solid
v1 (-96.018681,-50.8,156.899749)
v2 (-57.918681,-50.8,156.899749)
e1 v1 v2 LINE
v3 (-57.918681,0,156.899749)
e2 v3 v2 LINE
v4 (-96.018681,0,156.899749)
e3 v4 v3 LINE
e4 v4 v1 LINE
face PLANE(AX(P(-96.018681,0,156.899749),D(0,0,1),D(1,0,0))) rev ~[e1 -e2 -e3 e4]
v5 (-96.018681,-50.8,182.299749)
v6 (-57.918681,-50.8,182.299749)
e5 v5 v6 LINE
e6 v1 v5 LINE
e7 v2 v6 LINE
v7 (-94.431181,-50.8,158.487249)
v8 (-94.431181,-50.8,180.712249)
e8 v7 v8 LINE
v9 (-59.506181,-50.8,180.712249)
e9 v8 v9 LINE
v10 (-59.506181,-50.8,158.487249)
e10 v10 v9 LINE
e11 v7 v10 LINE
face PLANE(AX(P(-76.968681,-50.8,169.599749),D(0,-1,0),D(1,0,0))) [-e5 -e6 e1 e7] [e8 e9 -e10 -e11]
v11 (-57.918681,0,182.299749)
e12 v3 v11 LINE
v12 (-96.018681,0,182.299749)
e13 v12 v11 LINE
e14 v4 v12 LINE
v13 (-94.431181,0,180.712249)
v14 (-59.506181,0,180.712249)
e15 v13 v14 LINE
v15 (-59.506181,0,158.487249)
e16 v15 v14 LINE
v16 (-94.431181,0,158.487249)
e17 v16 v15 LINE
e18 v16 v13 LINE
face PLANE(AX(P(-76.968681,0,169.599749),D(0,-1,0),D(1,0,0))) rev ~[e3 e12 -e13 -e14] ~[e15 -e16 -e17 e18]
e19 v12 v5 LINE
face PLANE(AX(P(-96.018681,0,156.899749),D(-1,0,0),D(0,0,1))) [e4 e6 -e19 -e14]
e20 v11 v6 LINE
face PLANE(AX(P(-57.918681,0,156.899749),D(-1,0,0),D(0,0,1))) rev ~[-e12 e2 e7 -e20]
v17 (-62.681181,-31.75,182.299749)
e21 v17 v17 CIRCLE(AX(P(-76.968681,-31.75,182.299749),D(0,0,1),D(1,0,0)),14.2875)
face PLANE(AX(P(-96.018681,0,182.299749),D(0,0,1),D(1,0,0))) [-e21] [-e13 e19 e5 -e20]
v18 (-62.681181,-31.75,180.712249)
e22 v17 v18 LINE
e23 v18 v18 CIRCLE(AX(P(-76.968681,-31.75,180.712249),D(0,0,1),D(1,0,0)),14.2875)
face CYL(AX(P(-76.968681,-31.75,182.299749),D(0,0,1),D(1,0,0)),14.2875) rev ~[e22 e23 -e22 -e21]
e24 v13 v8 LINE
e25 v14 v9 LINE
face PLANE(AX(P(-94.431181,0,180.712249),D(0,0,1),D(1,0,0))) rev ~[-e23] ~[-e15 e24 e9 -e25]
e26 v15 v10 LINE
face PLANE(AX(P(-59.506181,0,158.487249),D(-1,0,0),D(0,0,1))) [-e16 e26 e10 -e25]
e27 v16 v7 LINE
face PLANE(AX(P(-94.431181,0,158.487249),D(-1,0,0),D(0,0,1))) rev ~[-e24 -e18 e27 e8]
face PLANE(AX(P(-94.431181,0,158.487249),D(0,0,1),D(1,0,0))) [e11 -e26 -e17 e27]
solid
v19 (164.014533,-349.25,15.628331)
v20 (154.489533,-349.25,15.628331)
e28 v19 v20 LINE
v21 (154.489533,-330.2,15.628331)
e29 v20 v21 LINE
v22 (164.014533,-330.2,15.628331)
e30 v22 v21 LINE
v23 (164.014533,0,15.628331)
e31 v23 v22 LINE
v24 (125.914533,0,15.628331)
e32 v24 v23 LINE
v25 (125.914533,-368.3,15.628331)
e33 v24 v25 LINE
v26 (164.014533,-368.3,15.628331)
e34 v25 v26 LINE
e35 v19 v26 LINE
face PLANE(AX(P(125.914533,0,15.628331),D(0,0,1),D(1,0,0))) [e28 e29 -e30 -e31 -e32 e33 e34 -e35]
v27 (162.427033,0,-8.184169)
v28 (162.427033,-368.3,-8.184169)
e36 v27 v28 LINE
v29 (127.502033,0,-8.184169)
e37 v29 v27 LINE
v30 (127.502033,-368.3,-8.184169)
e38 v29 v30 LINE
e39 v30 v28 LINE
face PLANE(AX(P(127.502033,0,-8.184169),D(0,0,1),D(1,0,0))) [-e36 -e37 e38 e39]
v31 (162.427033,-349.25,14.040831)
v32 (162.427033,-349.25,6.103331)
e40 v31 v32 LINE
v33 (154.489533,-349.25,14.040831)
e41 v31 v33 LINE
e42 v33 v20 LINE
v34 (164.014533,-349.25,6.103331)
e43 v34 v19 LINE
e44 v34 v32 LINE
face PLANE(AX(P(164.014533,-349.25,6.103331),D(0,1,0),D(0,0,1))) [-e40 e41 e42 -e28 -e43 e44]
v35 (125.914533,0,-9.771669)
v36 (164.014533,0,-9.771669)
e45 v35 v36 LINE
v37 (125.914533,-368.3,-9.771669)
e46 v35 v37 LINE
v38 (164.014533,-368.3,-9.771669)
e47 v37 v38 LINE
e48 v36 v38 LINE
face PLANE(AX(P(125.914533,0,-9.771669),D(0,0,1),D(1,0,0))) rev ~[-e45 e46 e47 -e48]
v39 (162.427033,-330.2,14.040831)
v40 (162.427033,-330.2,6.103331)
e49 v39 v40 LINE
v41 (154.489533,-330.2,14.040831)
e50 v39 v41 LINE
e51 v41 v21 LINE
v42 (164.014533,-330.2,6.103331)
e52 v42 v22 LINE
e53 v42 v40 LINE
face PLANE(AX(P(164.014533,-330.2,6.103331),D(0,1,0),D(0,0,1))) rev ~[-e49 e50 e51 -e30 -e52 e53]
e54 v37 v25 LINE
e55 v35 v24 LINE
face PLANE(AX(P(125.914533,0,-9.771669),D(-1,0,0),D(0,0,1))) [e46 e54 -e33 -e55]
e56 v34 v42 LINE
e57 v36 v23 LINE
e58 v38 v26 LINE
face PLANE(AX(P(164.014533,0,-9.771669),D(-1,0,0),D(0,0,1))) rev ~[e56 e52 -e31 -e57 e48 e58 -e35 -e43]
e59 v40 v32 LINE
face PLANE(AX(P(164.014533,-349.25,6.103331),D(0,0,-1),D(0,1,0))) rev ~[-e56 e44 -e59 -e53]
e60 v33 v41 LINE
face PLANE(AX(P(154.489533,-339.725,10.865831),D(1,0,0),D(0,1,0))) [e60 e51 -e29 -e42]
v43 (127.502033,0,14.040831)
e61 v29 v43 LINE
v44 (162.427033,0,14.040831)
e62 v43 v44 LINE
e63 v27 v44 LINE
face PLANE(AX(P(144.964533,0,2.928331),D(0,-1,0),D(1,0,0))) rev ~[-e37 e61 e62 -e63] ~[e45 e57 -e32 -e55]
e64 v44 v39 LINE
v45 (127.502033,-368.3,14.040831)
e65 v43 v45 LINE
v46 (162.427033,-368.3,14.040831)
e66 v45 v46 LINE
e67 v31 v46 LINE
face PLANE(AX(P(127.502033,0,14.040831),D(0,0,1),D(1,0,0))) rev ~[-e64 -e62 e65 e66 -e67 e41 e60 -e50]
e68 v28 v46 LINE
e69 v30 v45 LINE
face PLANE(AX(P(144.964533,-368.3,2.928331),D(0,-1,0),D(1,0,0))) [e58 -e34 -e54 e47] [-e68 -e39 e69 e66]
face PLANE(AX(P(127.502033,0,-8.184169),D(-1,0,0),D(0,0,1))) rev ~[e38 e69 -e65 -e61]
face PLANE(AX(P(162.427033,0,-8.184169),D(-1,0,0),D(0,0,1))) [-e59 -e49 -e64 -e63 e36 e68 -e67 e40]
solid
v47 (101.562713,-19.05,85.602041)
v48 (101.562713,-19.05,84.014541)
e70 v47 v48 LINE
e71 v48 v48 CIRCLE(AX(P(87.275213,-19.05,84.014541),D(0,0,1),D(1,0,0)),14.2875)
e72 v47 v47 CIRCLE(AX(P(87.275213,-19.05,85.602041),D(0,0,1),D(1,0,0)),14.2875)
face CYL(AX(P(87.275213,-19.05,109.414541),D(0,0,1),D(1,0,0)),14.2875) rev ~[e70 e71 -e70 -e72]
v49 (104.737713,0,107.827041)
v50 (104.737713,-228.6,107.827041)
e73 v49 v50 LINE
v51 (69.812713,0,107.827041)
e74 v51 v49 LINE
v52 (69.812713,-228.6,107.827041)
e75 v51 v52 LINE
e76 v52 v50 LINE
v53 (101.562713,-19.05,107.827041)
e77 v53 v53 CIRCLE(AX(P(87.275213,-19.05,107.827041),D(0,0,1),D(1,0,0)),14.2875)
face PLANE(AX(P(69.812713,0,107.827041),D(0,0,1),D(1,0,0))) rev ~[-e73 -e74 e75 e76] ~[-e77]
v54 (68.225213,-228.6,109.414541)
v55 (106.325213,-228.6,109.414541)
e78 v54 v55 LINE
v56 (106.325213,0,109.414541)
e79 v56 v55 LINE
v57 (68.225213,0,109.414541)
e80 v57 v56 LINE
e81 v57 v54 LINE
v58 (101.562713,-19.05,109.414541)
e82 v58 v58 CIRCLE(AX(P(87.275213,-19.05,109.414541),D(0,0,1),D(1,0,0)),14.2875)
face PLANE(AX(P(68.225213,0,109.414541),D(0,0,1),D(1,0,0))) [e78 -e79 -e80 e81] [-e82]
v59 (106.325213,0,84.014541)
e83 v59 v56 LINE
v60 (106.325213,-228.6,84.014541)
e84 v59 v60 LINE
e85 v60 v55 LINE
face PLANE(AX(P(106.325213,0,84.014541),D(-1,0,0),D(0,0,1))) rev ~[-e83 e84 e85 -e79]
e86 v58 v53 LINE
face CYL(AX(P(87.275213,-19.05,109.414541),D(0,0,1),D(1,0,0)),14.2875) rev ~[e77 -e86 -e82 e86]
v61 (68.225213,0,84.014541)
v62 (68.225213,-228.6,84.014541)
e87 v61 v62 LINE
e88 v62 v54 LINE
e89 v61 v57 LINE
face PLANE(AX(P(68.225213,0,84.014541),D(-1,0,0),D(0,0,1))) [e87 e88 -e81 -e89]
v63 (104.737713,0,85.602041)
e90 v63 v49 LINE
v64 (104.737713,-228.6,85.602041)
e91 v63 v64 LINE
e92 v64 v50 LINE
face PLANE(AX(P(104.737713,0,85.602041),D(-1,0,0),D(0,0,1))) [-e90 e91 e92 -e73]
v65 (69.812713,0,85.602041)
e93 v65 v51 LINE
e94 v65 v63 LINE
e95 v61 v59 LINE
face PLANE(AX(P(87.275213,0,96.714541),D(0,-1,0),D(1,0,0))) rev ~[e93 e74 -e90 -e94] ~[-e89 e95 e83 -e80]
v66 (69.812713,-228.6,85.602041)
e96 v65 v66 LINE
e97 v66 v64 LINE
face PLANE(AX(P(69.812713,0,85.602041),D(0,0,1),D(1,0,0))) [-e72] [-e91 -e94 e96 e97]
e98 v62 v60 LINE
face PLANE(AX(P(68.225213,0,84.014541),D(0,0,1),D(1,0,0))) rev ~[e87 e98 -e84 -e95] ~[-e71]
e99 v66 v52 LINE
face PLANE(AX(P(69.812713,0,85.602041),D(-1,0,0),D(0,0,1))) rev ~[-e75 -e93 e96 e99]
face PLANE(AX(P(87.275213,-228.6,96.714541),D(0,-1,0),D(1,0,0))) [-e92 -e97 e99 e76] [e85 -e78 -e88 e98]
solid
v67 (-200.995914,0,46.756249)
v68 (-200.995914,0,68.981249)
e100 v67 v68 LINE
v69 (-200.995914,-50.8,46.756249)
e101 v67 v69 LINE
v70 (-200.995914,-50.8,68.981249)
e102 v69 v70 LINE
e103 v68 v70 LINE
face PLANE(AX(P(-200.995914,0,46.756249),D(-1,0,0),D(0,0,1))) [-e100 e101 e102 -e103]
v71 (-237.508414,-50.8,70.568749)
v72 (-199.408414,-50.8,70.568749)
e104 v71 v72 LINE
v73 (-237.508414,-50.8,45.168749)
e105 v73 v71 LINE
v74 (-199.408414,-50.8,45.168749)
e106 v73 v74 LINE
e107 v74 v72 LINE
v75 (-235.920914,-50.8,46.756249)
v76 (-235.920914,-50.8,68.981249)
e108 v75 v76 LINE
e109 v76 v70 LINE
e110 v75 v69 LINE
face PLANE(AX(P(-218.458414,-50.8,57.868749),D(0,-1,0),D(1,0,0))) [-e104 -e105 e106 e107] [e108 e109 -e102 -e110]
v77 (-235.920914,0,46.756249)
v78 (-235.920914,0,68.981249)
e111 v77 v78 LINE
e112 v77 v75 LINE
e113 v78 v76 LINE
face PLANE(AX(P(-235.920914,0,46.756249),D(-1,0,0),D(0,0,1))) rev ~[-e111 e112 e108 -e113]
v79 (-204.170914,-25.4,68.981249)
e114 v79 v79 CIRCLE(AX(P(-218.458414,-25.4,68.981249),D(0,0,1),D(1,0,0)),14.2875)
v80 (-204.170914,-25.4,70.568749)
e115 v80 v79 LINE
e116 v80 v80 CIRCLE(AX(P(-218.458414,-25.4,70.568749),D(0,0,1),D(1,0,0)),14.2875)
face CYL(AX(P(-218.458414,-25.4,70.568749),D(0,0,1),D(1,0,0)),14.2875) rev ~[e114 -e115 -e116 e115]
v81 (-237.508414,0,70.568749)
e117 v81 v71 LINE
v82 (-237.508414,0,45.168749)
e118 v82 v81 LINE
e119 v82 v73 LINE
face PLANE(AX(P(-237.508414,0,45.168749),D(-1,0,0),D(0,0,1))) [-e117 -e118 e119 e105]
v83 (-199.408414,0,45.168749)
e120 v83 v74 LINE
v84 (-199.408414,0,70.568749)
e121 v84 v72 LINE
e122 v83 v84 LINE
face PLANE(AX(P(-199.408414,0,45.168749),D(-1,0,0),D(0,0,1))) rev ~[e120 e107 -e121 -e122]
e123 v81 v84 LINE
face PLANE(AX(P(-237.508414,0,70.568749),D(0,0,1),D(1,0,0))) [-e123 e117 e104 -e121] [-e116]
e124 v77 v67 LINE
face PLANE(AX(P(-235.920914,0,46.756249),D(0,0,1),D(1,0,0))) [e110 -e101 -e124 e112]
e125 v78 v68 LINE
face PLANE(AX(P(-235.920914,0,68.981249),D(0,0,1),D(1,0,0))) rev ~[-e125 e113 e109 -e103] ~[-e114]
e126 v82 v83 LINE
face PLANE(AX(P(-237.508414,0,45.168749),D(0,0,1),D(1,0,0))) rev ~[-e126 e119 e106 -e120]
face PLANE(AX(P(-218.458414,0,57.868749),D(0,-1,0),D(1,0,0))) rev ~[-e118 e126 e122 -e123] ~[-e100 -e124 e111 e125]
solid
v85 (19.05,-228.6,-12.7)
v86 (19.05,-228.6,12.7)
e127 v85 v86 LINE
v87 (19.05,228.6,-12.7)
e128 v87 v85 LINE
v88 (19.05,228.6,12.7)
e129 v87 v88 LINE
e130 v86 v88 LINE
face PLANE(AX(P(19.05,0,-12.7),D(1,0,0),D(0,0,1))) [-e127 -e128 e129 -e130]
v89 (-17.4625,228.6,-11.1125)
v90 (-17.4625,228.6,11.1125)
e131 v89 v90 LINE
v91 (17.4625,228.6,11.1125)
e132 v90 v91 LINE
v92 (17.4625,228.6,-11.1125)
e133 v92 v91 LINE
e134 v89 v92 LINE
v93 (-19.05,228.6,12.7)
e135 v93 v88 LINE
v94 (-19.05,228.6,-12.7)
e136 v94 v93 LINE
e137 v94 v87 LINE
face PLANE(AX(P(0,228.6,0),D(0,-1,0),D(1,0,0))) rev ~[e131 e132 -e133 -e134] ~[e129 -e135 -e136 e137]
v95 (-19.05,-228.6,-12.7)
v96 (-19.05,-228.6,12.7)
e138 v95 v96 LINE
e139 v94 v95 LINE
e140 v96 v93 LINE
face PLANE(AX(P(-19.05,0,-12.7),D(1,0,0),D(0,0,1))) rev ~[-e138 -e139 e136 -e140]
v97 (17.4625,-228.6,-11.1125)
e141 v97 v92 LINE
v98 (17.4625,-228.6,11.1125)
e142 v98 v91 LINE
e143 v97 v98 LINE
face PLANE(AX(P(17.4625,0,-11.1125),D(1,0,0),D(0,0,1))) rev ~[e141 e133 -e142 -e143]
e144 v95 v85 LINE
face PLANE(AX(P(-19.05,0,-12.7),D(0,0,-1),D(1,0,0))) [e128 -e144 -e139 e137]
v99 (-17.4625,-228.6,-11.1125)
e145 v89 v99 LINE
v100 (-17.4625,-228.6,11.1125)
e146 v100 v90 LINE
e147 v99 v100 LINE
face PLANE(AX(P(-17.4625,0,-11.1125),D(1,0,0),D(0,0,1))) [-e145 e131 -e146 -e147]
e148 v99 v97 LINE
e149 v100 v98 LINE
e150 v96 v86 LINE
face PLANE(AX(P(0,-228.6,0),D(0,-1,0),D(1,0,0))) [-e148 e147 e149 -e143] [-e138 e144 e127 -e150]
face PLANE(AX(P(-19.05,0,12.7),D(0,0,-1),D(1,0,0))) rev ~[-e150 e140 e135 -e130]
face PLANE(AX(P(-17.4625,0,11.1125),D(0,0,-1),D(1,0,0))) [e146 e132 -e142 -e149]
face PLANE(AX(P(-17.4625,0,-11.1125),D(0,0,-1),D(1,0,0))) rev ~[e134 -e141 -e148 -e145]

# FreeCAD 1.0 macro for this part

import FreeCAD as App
import Part
import Sketcher

V = App.Vector
Q = App.Units.Quantity


def add_polygon(sketch, points):
    """Adds a closed chain of lines whose ends are joined by coincident constraints."""
    first, n = sketch.GeometryCount, len(points)
    for a, b in zip(points, points[1:] + points[:1]):
        sketch.addGeometry(Part.LineSegment(App.Vector(*a, 0), App.Vector(*b, 0)), False)
    for i in range(n):
        sketch.addConstraint(Sketcher.Constraint("Coincident", first + i, 2, first + (i + 1) % n, 1))

doc = App.newDocument("Part")
body = doc.addObject("PartDesign::Body", "Body")

sketch1 = body.newObject("Sketcher::SketchObject", "Sketch")
sketch1.AttachmentSupport = (doc.getObject("XZ_Plane"), [""])
sketch1.MapMode = "FlatFace"
add_polygon(sketch1, [(-19, 13), (-19, -13), (19, -13), (19, 13)])
add_polygon(sketch1, [(17, -11), (-17, -11), (-17, 11), (17, 11)])
sketch1.addConstraint(Sketcher.Constraint("Vertical", 0))
sketch1.addConstraint(Sketcher.Constraint("Horizontal", 1))
sketch1.addConstraint(Sketcher.Constraint("Vertical", 2))
sketch1.addConstraint(Sketcher.Constraint("Horizontal", 3))
sketch1.addConstraint(Sketcher.Constraint("Horizontal", 4))
sketch1.addConstraint(Sketcher.Constraint("Vertical", 5))
sketch1.addConstraint(Sketcher.Constraint("Horizontal", 6))
sketch1.addConstraint(Sketcher.Constraint("Vertical", 7))
sketch1.addConstraint(Sketcher.Constraint("Symmetric", 0, 2, 2, 2, -1, 1))
sketch1.addConstraint(Sketcher.Constraint("Symmetric", 4, 2, 6, 2, -1, 1))
sketch1.addConstraint(Sketcher.Constraint("DistanceY", 0, 2, 0, 1, Q("1 in")))
sketch1.addConstraint(Sketcher.Constraint("DistanceX", 1, 1, 1, 2, Q("1.5 in")))
sketch1.addConstraint(Sketcher.Constraint("DistanceX", 4, 2, 4, 1, Q("1.375 in")))
sketch1.addConstraint(Sketcher.Constraint("DistanceY", 5, 1, 5, 2, Q("0.875 in")))
pad1 = body.newObject("PartDesign::Pad", "Pad")
pad1.Profile = sketch1
pad1.Length = Q("18 in")
pad1.Midplane = True
body2 = doc.addObject("PartDesign::Body", "Body001")

sketch2 = body2.newObject("Sketcher::SketchObject", "Sketch001")
sketch2.AttachmentSupport = (doc.getObject("XZ_Plane001"), [""])
sketch2.MapMode = "FlatFace"
add_polygon(sketch2, [(68, 109), (68, 84), (106, 84), (106, 109)])
add_polygon(sketch2, [(105, 86), (70, 86), (70, 108), (105, 108)])
sketch2.addConstraint(Sketcher.Constraint("Vertical", 0))
sketch2.addConstraint(Sketcher.Constraint("Horizontal", 1))
sketch2.addConstraint(Sketcher.Constraint("Vertical", 2))
sketch2.addConstraint(Sketcher.Constraint("Horizontal", 3))
sketch2.addConstraint(Sketcher.Constraint("Horizontal", 4))
sketch2.addConstraint(Sketcher.Constraint("Vertical", 5))
sketch2.addConstraint(Sketcher.Constraint("Horizontal", 6))
sketch2.addConstraint(Sketcher.Constraint("Vertical", 7))
sketch2.addConstraint(Sketcher.Constraint("DistanceY", 0, 2, 0, 1, Q("1 in")))
sketch2.addConstraint(Sketcher.Constraint("DistanceX", 1, 1, 1, 2, Q("1.5 in")))
sketch2.addConstraint(Sketcher.Constraint("DistanceX", 4, 2, 4, 1, Q("1.375 in")))
sketch2.addConstraint(Sketcher.Constraint("DistanceY", 5, 1, 5, 2, Q("0.875 in")))
sketch2.addConstraint(Sketcher.Constraint("DistanceX", 0, 2, 4, 2, Q("0.0625 in")))
sketch2.addConstraint(Sketcher.Constraint("DistanceY", 0, 2, 4, 2, Q("0.0625 in")))
sketch2.addConstraint(Sketcher.Constraint("DistanceY", -1, 1, 0, 2, 84.014541))
sketch2.addConstraint(Sketcher.Constraint("DistanceX", -1, 1, 0, 2, 68.225213))
pad2 = body2.newObject("PartDesign::Pad", "Pad001")
pad2.Profile = sketch2
pad2.Length = Q("9 in")

sketch3 = body2.newObject("Sketcher::SketchObject", "Sketch002")
sketch3.AttachmentSupport = (doc.getObject("XY_Plane001"), [""])
sketch3.MapMode = "FlatFace"
sketch3.AttachmentOffset = App.Placement(V(0, 0, 109.414541), App.Rotation())
sketch3.addGeometry(Part.Circle(V(87, -19, 0), V(0, 0, 1), 14), False)
sketch3.addConstraint(Sketcher.Constraint("Diameter", 0, Q("1.125 in")))
sketch3.addConstraint(Sketcher.Constraint("DistanceY", 0, 3, -1, 1, Q("0.75 in")))
sketch3.addConstraint(Sketcher.Constraint("DistanceX", -1, 1, 0, 3, 87.275213))
pocket1 = body2.newObject("PartDesign::Pocket", "Pocket")
pocket1.Profile = sketch3
pocket1.Type = "ThroughAll"
body3 = doc.addObject("PartDesign::Body", "Body002")

sketch4 = body3.newObject("Sketcher::SketchObject", "Sketch003")
sketch4.AttachmentSupport = (doc.getObject("XZ_Plane002"), [""])
sketch4.MapMode = "FlatFace"
add_polygon(sketch4, [(-96, 182), (-96, 157), (-58, 157), (-58, 182)])
add_polygon(sketch4, [(-60, 158), (-94, 158), (-94, 181), (-60, 181)])
sketch4.addConstraint(Sketcher.Constraint("Vertical", 0))
sketch4.addConstraint(Sketcher.Constraint("Horizontal", 1))
sketch4.addConstraint(Sketcher.Constraint("Vertical", 2))
sketch4.addConstraint(Sketcher.Constraint("Horizontal", 3))
sketch4.addConstraint(Sketcher.Constraint("Horizontal", 4))
sketch4.addConstraint(Sketcher.Constraint("Vertical", 5))
sketch4.addConstraint(Sketcher.Constraint("Horizontal", 6))
sketch4.addConstraint(Sketcher.Constraint("Vertical", 7))
sketch4.addConstraint(Sketcher.Constraint("DistanceY", 0, 2, 0, 1, Q("1 in")))
sketch4.addConstraint(Sketcher.Constraint("DistanceX", 1, 1, 1, 2, Q("1.5 in")))
sketch4.addConstraint(Sketcher.Constraint("DistanceX", 4, 2, 4, 1, Q("1.375 in")))
sketch4.addConstraint(Sketcher.Constraint("DistanceY", 5, 1, 5, 2, Q("0.875 in")))
sketch4.addConstraint(Sketcher.Constraint("DistanceX", 0, 2, 4, 2, Q("0.0625 in")))
sketch4.addConstraint(Sketcher.Constraint("DistanceY", 0, 2, 4, 2, Q("0.0625 in")))
sketch4.addConstraint(Sketcher.Constraint("DistanceX", 0, 2, -1, 1, 96.018681))
sketch4.addConstraint(Sketcher.Constraint("DistanceY", -1, 1, 0, 2, 156.899749))
pad3 = body3.newObject("PartDesign::Pad", "Pad002")
pad3.Profile = sketch4
pad3.Length = Q("2 in")

sketch5 = body3.newObject("Sketcher::SketchObject", "Sketch004")
sketch5.AttachmentSupport = (doc.getObject("XY_Plane002"), [""])
sketch5.MapMode = "FlatFace"
sketch5.AttachmentOffset = App.Placement(V(0, 0, 182.299749), App.Rotation())
sketch5.addGeometry(Part.Circle(V(-77, -32, 0), V(0, 0, 1), 14), False)
sketch5.addConstraint(Sketcher.Constraint("Diameter", 0, Q("1.125 in")))
sketch5.addConstraint(Sketcher.Constraint("DistanceY", 0, 3, -1, 1, Q("1.25 in")))
sketch5.addConstraint(Sketcher.Constraint("DistanceX", 0, 3, -1, 1, 76.968681))
pocket2 = body3.newObject("PartDesign::Pocket", "Pocket001")
pocket2.Profile = sketch5
pocket2.Length = Q("0.5 in")
body4 = doc.addObject("PartDesign::Body", "Body003")

sketch6 = body4.newObject("Sketcher::SketchObject", "Sketch005")
sketch6.AttachmentSupport = (doc.getObject("XZ_Plane003"), [""])
sketch6.MapMode = "FlatFace"
add_polygon(sketch6, [(-238, 71), (-238, 45), (-199, 45), (-199, 71)])
add_polygon(sketch6, [(-201, 47), (-236, 47), (-236, 69), (-201, 69)])
sketch6.addConstraint(Sketcher.Constraint("Vertical", 0))
sketch6.addConstraint(Sketcher.Constraint("Horizontal", 1))
sketch6.addConstraint(Sketcher.Constraint("Vertical", 2))
sketch6.addConstraint(Sketcher.Constraint("Horizontal", 3))
sketch6.addConstraint(Sketcher.Constraint("Horizontal", 4))
sketch6.addConstraint(Sketcher.Constraint("Vertical", 5))
sketch6.addConstraint(Sketcher.Constraint("Horizontal", 6))
sketch6.addConstraint(Sketcher.Constraint("Vertical", 7))
sketch6.addConstraint(Sketcher.Constraint("DistanceY", 0, 2, 0, 1, Q("1 in")))
sketch6.addConstraint(Sketcher.Constraint("DistanceX", 1, 1, 1, 2, Q("1.5 in")))
sketch6.addConstraint(Sketcher.Constraint("DistanceX", 4, 2, 4, 1, Q("1.375 in")))
sketch6.addConstraint(Sketcher.Constraint("DistanceY", 5, 1, 5, 2, Q("0.875 in")))
sketch6.addConstraint(Sketcher.Constraint("DistanceX", 0, 2, 4, 2, Q("0.0625 in")))
sketch6.addConstraint(Sketcher.Constraint("DistanceY", 0, 2, 4, 2, Q("0.0625 in")))
sketch6.addConstraint(Sketcher.Constraint("DistanceY", -1, 1, 0, 2, 45.168749))
sketch6.addConstraint(Sketcher.Constraint("DistanceX", 0, 2, -1, 1, 237.508414))
pad4 = body4.newObject("PartDesign::Pad", "Pad003")
pad4.Profile = sketch6
pad4.Length = Q("2 in")

sketch7 = body4.newObject("Sketcher::SketchObject", "Sketch006")
sketch7.AttachmentSupport = (doc.getObject("XY_Plane003"), [""])
sketch7.MapMode = "FlatFace"
sketch7.AttachmentOffset = App.Placement(V(0, 0, 70.568749), App.Rotation())
sketch7.addGeometry(Part.Circle(V(-218, -25, 0), V(0, 0, 1), 14), False)
sketch7.addConstraint(Sketcher.Constraint("Diameter", 0, Q("1.125 in")))
sketch7.addConstraint(Sketcher.Constraint("DistanceY", 0, 3, -1, 1, Q("1 in")))
sketch7.addConstraint(Sketcher.Constraint("DistanceX", 0, 3, -1, 1, 218.458414))
pocket3 = body4.newObject("PartDesign::Pocket", "Pocket002")
pocket3.Profile = sketch7
pocket3.Length = Q("0.0625 in")
body5 = doc.addObject("PartDesign::Body", "Body004")

sketch8 = body5.newObject("Sketcher::SketchObject", "Sketch007")
sketch8.AttachmentSupport = (doc.getObject("XZ_Plane004"), [""])
sketch8.MapMode = "FlatFace"
add_polygon(sketch8, [(126, 16), (126, -10), (164, -10), (164, 16)])
add_polygon(sketch8, [(162, -8), (128, -8), (128, 14), (162, 14)])
sketch8.addConstraint(Sketcher.Constraint("Vertical", 0))
sketch8.addConstraint(Sketcher.Constraint("Horizontal", 1))
sketch8.addConstraint(Sketcher.Constraint("Vertical", 2))
sketch8.addConstraint(Sketcher.Constraint("Horizontal", 3))
sketch8.addConstraint(Sketcher.Constraint("Horizontal", 4))
sketch8.addConstraint(Sketcher.Constraint("Vertical", 5))
sketch8.addConstraint(Sketcher.Constraint("Horizontal", 6))
sketch8.addConstraint(Sketcher.Constraint("Vertical", 7))
sketch8.addConstraint(Sketcher.Constraint("DistanceY", 0, 2, 0, 1, Q("1 in")))
sketch8.addConstraint(Sketcher.Constraint("DistanceX", 1, 1, 1, 2, Q("1.5 in")))
sketch8.addConstraint(Sketcher.Constraint("DistanceX", 4, 2, 4, 1, Q("1.375 in")))
sketch8.addConstraint(Sketcher.Constraint("DistanceY", 5, 1, 5, 2, Q("0.875 in")))
sketch8.addConstraint(Sketcher.Constraint("DistanceX", 0, 2, 4, 2, Q("0.0625 in")))
sketch8.addConstraint(Sketcher.Constraint("DistanceY", 0, 2, 4, 2, Q("0.0625 in")))
sketch8.addConstraint(Sketcher.Constraint("DistanceY", 0, 2, -1, 1, 9.771669))
sketch8.addConstraint(Sketcher.Constraint("DistanceX", -1, 1, 0, 2, 125.914533))
pad5 = body5.newObject("PartDesign::Pad", "Pad004")
pad5.Profile = sketch8
pad5.Length = Q("14.5 in")

sketch9 = body5.newObject("Sketcher::SketchObject", "Sketch008")
sketch9.AttachmentSupport = (doc.getObject("YZ_Plane004"), [""])
sketch9.MapMode = "FlatFace"
sketch9.AttachmentOffset = App.Placement(V(0, 0, 164.014533), App.Rotation())
add_polygon(sketch9, [(-349, 16), (-349, 6), (-330, 6), (-330, 16)])
sketch9.addConstraint(Sketcher.Constraint("Vertical", 0))
sketch9.addConstraint(Sketcher.Constraint("Horizontal", 1))
sketch9.addConstraint(Sketcher.Constraint("Vertical", 2))
sketch9.addConstraint(Sketcher.Constraint("Horizontal", 3))
sketch9.addConstraint(Sketcher.Constraint("DistanceX", 1, 2, -1, 1, Q("13 in")))
sketch9.addConstraint(Sketcher.Constraint("DistanceX", 1, 1, 1, 2, Q("0.75 in")))
sketch9.addConstraint(Sketcher.Constraint("DistanceY", 0, 2, 0, 1, Q("0.375 in")))
sketch9.addConstraint(Sketcher.Constraint("DistanceY", -1, 1, 0, 2, 6.103331))
pocket4 = body5.newObject("PartDesign::Pocket", "Pocket003")
pocket4.Profile = sketch9
pocket4.Length = Q("0.375 in")

doc.recompute()
